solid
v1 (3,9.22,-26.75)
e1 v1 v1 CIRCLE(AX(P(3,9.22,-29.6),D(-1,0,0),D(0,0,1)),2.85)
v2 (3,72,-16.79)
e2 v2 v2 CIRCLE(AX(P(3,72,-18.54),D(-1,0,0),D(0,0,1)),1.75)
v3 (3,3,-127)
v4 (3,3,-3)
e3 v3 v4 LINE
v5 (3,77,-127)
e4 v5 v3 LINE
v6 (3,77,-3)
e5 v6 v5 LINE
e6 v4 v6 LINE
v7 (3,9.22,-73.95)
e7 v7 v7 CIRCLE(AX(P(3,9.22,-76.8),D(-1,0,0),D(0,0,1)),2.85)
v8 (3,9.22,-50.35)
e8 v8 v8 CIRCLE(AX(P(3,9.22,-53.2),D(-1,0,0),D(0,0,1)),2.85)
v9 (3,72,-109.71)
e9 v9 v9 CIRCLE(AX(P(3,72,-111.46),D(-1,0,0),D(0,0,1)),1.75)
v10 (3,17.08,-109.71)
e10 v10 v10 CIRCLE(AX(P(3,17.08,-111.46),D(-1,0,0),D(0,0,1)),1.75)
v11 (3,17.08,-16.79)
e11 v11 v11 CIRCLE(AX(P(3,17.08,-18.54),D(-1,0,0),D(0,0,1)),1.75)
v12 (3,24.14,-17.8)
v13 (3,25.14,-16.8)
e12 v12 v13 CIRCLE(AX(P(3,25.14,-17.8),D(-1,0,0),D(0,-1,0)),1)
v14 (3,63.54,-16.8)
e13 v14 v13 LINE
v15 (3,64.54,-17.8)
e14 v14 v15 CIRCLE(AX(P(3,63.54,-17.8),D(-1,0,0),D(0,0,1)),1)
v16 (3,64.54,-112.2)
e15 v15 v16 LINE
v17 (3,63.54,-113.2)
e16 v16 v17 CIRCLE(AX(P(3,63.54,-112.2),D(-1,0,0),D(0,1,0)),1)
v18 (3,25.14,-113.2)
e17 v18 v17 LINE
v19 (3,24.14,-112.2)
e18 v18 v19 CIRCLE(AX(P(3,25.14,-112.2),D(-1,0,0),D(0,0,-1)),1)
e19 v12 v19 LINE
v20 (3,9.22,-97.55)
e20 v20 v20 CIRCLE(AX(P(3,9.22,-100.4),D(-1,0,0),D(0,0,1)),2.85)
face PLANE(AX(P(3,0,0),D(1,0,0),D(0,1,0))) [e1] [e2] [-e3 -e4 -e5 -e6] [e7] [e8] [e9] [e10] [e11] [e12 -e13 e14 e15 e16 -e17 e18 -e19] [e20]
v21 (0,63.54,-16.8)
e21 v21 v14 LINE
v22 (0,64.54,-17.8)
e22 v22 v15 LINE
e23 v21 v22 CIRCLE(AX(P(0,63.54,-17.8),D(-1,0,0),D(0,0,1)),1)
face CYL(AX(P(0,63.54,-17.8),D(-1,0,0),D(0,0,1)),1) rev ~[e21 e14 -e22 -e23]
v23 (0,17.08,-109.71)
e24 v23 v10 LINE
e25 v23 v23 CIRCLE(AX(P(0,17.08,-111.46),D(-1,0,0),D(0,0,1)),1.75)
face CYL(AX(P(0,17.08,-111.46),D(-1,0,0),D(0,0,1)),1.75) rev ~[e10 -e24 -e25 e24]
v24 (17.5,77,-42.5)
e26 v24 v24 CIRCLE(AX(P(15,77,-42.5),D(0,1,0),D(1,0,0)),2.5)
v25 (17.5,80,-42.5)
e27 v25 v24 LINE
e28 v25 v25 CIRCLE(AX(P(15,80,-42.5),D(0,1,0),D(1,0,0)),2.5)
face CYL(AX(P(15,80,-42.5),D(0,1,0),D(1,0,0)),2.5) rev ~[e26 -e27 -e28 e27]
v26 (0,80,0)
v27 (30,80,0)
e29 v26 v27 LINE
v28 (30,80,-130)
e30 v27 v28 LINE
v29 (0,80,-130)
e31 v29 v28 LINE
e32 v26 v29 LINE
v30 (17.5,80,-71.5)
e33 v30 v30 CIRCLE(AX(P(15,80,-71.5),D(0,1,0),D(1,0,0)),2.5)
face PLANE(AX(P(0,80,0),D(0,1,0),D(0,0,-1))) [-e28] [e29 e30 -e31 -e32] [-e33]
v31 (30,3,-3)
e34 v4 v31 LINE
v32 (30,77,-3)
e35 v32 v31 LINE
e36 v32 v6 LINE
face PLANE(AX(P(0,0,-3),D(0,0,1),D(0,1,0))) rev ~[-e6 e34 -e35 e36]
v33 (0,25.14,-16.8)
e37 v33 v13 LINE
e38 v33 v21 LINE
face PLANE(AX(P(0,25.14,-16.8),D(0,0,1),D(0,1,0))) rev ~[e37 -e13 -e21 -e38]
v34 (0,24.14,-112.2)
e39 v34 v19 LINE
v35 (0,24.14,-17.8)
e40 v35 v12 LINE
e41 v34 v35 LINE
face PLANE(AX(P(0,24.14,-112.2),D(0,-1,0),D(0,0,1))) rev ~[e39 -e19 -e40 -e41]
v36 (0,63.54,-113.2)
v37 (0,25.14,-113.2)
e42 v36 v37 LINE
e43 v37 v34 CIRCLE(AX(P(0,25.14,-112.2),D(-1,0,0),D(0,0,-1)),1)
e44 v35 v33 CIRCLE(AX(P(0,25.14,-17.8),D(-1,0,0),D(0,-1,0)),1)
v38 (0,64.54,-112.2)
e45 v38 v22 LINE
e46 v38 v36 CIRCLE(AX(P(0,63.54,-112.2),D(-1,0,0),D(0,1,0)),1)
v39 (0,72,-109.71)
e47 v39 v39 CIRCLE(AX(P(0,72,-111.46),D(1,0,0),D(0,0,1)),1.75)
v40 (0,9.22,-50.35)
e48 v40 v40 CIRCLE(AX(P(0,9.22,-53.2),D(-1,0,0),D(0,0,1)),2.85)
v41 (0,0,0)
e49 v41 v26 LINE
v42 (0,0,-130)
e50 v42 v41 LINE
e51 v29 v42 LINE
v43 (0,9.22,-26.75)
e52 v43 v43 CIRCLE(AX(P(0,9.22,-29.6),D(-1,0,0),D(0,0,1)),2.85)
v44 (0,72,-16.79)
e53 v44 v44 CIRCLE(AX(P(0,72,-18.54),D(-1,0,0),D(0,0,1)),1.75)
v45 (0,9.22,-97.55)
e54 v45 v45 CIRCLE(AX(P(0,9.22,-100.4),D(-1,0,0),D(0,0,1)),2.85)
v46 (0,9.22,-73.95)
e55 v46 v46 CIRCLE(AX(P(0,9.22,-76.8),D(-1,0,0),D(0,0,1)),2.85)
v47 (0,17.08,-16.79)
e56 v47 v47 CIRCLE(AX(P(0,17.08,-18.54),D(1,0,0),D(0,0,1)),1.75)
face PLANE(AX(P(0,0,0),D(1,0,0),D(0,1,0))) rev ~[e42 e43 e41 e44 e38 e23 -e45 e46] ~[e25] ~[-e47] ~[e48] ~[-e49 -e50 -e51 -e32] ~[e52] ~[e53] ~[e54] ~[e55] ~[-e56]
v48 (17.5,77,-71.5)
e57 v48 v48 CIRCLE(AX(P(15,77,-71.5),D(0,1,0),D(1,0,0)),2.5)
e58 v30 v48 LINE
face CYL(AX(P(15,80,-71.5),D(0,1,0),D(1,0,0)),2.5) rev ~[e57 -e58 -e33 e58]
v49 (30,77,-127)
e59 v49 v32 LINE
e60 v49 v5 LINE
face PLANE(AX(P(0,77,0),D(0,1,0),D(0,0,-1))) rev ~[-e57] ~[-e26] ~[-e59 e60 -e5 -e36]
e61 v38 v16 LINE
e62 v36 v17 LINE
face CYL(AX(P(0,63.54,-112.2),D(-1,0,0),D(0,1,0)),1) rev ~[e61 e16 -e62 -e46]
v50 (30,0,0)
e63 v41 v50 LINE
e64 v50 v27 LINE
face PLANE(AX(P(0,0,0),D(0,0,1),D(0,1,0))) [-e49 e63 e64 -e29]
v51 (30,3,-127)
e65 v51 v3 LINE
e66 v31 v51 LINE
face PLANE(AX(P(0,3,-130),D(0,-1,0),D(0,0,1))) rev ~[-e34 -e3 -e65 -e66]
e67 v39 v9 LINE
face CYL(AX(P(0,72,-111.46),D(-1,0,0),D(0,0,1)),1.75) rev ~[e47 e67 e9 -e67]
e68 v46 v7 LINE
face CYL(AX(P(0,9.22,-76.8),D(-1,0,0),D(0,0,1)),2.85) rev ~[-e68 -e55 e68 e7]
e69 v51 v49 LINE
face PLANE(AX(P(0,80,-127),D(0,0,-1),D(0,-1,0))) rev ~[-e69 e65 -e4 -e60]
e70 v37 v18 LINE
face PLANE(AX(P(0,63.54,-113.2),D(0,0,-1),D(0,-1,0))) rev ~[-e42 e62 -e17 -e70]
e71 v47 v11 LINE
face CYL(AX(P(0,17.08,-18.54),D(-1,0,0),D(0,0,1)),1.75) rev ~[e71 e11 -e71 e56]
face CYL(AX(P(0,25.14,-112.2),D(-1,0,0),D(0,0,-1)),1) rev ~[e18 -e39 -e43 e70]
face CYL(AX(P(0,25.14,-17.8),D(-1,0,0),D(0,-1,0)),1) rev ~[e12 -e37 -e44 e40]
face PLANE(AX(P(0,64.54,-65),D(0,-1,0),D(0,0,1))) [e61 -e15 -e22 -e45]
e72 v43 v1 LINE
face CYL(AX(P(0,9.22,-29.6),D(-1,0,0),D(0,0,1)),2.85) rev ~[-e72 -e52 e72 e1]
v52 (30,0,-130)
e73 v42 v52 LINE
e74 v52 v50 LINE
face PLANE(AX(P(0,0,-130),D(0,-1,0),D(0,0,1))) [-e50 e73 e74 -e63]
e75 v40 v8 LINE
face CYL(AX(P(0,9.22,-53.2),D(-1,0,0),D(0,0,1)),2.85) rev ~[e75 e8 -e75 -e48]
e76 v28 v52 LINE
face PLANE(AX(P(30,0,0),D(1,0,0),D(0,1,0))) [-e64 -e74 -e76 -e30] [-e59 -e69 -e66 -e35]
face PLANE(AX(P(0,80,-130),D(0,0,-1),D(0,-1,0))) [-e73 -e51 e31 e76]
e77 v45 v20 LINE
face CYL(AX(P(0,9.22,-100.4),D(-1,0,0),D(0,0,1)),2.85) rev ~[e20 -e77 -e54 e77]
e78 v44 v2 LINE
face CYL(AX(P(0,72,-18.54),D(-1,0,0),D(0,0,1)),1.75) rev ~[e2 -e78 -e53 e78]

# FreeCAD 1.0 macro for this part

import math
import FreeCAD as App
import Part
import Sketcher
Q = App.Units.Quantity


def faces_at(feature, points):
    """Names of the faces that lie closest to the given points."""
    faces = feature.Shape.Faces
    near = lambda p: min(range(len(faces)), key=lambda i: faces[i].distToShape(Part.Vertex(*p))[0])
    return sorted({f"Face{near(p) + 1}" for p in points})


def add_polygon(sketch, points):
    """Adds a closed chain of lines whose ends are joined by coincident constraints."""
    first, n = sketch.GeometryCount, len(points)
    for a, b in zip(points, points[1:] + points[:1]):
        sketch.addGeometry(Part.LineSegment(App.Vector(*a, 0), App.Vector(*b, 0)), False)
    for i in range(n):
        sketch.addConstraint(Sketcher.Constraint("Coincident", first + i, 2, first + (i + 1) % n, 1))

doc = App.newDocument("Part")
body = doc.addObject("PartDesign::Body", "Body")

# Sketch on YZ plane
sketch1 = body.newObject("Sketcher::SketchObject", "Sketch")
sketch1.AttachmentSupport = (doc.getObject("YZ_Plane"), [""])
sketch1.MapMode = "FlatFace"
add_polygon(sketch1, [(80, 0), (0, 0), (0, -130), (80, -130)])  # lines 0-3
sketch1.addConstraint(Sketcher.Constraint("Horizontal", 0))
sketch1.addConstraint(Sketcher.Constraint("Vertical", 1))
sketch1.addConstraint(Sketcher.Constraint("Horizontal", 2))
sketch1.addConstraint(Sketcher.Constraint("Vertical", 3))
sketch1.addConstraint(Sketcher.Constraint("Coincident", 0, 2, -1, 1))
sketch1.addConstraint(Sketcher.Constraint("DistanceX", 0, 2, 0, 1, Q("80 mm")))
sketch1.addConstraint(Sketcher.Constraint("DistanceY", 1, 2, 1, 1, Q("130 mm")))
pad1 = body.newObject("PartDesign::Pad", "Pad")
pad1.Profile = sketch1
pad1.Length = 30
doc.recompute()

thickness = body.newObject("PartDesign::Thickness", "Thickness")
thickness.Base = (pad1, faces_at(pad1, [(30, 53.333, -43.333)]))
thickness.Value = 3
thickness.Reversed = True
thickness.Join = "Intersection"

# Sketch on YZ plane
sketch2 = body.newObject("Sketcher::SketchObject", "Sketch001")
sketch2.AttachmentSupport = (doc.getObject("YZ_Plane"), [""])
sketch2.MapMode = "FlatFace"
sketch2.addGeometry(Part.Circle(App.Vector(72, -111.5, 0), App.Vector(0, 0, 1), 1.8), False)
sketch2.addGeometry(Part.LineSegment(App.Vector(64.5, -17.8, 0), App.Vector(64.5, -112.2, 0)), False)
sketch2.addGeometry(Part.ArcOfCircle(Part.Circle(App.Vector(63.5, -112.2, 0), App.Vector(0, 0, 1), 1), math.radians(-90), math.radians(0)), False)
sketch2.addGeometry(Part.LineSegment(App.Vector(63.5, -113.2, 0), App.Vector(25.1, -113.2, 0)), False)
sketch2.addGeometry(Part.ArcOfCircle(Part.Circle(App.Vector(25.1, -112.2, 0), App.Vector(0, 0, 1), 1), math.radians(180), math.radians(270)), False)
sketch2.addGeometry(Part.LineSegment(App.Vector(24.1, -112.2, 0), App.Vector(24.1, -17.8, 0)), False)
sketch2.addGeometry(Part.ArcOfCircle(Part.Circle(App.Vector(25.1, -17.8, 0), App.Vector(0, 0, 1), 1), math.radians(90), math.radians(180)), False)
sketch2.addGeometry(Part.LineSegment(App.Vector(25.1, -16.8, 0), App.Vector(63.5, -16.8, 0)), False)
sketch2.addGeometry(Part.ArcOfCircle(Part.Circle(App.Vector(63.5, -17.8, 0), App.Vector(0, 0, 1), 1), math.radians(0), math.radians(90)), False)
sketch2.addGeometry(Part.Circle(App.Vector(72, -18.5, 0), App.Vector(0, 0, 1), 1.8), False)
sketch2.addGeometry(Part.Circle(App.Vector(17.1, -18.5, 0), App.Vector(0, 0, 1), 1.8), False)
sketch2.addGeometry(Part.Circle(App.Vector(17.1, -111.5, 0), App.Vector(0, 0, 1), 1.8), False)
sketch2.addConstraint(Sketcher.Constraint("Tangent", 1, 2, 2, 2))
sketch2.addConstraint(Sketcher.Constraint("Tangent", 2, 1, 3, 1))
sketch2.addConstraint(Sketcher.Constraint("Tangent", 3, 2, 4, 2))
sketch2.addConstraint(Sketcher.Constraint("Tangent", 4, 1, 5, 1))
sketch2.addConstraint(Sketcher.Constraint("Tangent", 5, 2, 6, 2))
sketch2.addConstraint(Sketcher.Constraint("Tangent", 6, 1, 7, 1))
sketch2.addConstraint(Sketcher.Constraint("Tangent", 7, 2, 8, 2))
sketch2.addConstraint(Sketcher.Constraint("Tangent", 8, 1, 1, 1))
sketch2.addConstraint(Sketcher.Constraint("Vertical", 1))
sketch2.addConstraint(Sketcher.Constraint("Horizontal", 3))
sketch2.addConstraint(Sketcher.Constraint("Vertical", 5))
sketch2.addConstraint(Sketcher.Constraint("Horizontal", 7))
sketch2.addConstraint(Sketcher.Constraint("Equal", 2, 4))
sketch2.addConstraint(Sketcher.Constraint("Equal", 4, 6))
sketch2.addConstraint(Sketcher.Constraint("Equal", 6, 8))
sketch2.addConstraint(Sketcher.Constraint("Equal", 0, 9))
sketch2.addConstraint(Sketcher.Constraint("Equal", 9, 10))
sketch2.addConstraint(Sketcher.Constraint("Equal", 10, 11))
sketch2.addConstraint(Sketcher.Constraint("Horizontal", 9, 3, 10, 3))
sketch2.addConstraint(Sketcher.Constraint("Horizontal", 0, 3, 11, 3))
sketch2.addConstraint(Sketcher.Constraint("Vertical", 0, 3, 9, 3))
sketch2.addConstraint(Sketcher.Constraint("Vertical", 10, 3, 11, 3))
sketch2.addConstraint(Sketcher.Constraint("Radius", 2, Q("1 mm")))
sketch2.addConstraint(Sketcher.Constraint("Diameter", 0, Q("3.5 mm")))
sketch2.addConstraint(Sketcher.Constraint("DistanceY", 0, 3, 9, 3, Q("92.92 mm")))
sketch2.addConstraint(Sketcher.Constraint("DistanceX", 10, 3, 9, 3, Q("54.92 mm")))
sketch2.addConstraint(Sketcher.Constraint("DistanceX", 1, 2, 0, 3, Q("7.46 mm")))
sketch2.addConstraint(Sketcher.Constraint("DistanceX", 3, 2, 3, 1, Q("38.4 mm")))
sketch2.addConstraint(Sketcher.Constraint("DistanceY", 1, 2, 1, 1, Q("94.4 mm")))
sketch2.addConstraint(Sketcher.Constraint("DistanceX", -1, 1, 0, 3, Q("72 mm")))
sketch2.addConstraint(Sketcher.Constraint("DistanceY", 2, 3, -1, 1, Q("112.2 mm")))
sketch2.addConstraint(Sketcher.Constraint("DistanceY", 0, 3, -1, 1, Q("111.46 mm")))
pocket1 = body.newObject("PartDesign::Pocket", "Pocket")
pocket1.Profile = sketch2
pocket1.Length = 30
pocket1.Reversed = True

# Sketch on YZ plane
sketch3 = body.newObject("Sketcher::SketchObject", "Sketch002")
sketch3.AttachmentSupport = (doc.getObject("YZ_Plane"), [""])
sketch3.MapMode = "FlatFace"
sketch3.addGeometry(Part.Circle(App.Vector(9.2, -53.2, 0), App.Vector(0, 0, 1), 2.9), False)
sketch3.addGeometry(Part.Circle(App.Vector(9.2, -29.6, 0), App.Vector(0, 0, 1), 2.9), False)
sketch3.addGeometry(Part.Circle(App.Vector(9.2, -76.8, 0), App.Vector(0, 0, 1), 2.9), False)
sketch3.addGeometry(Part.Circle(App.Vector(9.2, -100.4, 0), App.Vector(0, 0, 1), 2.9), False)
sketch3.addConstraint(Sketcher.Constraint("Equal", 0, 1))
sketch3.addConstraint(Sketcher.Constraint("Equal", 1, 2))
sketch3.addConstraint(Sketcher.Constraint("Equal", 2, 3))
sketch3.addConstraint(Sketcher.Constraint("Vertical", 0, 3, 1, 3))
sketch3.addConstraint(Sketcher.Constraint("Vertical", 1, 3, 2, 3))
sketch3.addConstraint(Sketcher.Constraint("Vertical", 2, 3, 3, 3))
sketch3.addConstraint(Sketcher.Constraint("Diameter", 0, Q("5.7 mm")))
sketch3.addConstraint(Sketcher.Constraint("DistanceY", 0, 3, -1, 1, Q("53.2 mm")))
sketch3.addConstraint(Sketcher.Constraint("DistanceY", 1, 3, -1, 1, Q("29.6 mm")))
sketch3.addConstraint(Sketcher.Constraint("DistanceY", 2, 3, -1, 1, Q("76.8 mm")))
sketch3.addConstraint(Sketcher.Constraint("DistanceY", 3, 3, -1, 1, Q("100.4 mm")))
sketch3.addConstraint(Sketcher.Constraint("DistanceX", -1, 1, 0, 3, Q("9.22 mm")))
pocket2 = body.newObject("PartDesign::Pocket", "Pocket001")
pocket2.Profile = sketch3
pocket2.Length = 30
pocket2.Reversed = True

# Sketch on XZ plane
sketch4 = body.newObject("Sketcher::SketchObject", "Sketch003")
sketch4.AttachmentSupport = (doc.getObject("XZ_Plane"), [""])
sketch4.MapMode = "FlatFace"
sketch4.AttachmentOffset = App.Placement(App.Vector(0, 0, -80), App.Rotation())
sketch4.addGeometry(Part.Circle(App.Vector(15, -71.5, 0), App.Vector(0, 0, 1), 2.5), False)
sketch4.addGeometry(Part.Circle(App.Vector(15, -42.5, 0), App.Vector(0, 0, 1), 2.5), False)
sketch4.addConstraint(Sketcher.Constraint("Equal", 0, 1))
sketch4.addConstraint(Sketcher.Constraint("Vertical", 0, 3, 1, 3))
sketch4.addConstraint(Sketcher.Constraint("Diameter", 0, Q("5 mm")))
sketch4.addConstraint(Sketcher.Constraint("DistanceX", -1, 1, 0, 3, Q("15 mm")))
sketch4.addConstraint(Sketcher.Constraint("DistanceY", 0, 3, 1, 3, Q("29 mm")))
sketch4.addConstraint(Sketcher.Constraint("DistanceY", 0, 3, -1, 1, Q("71.5 mm")))
pocket3 = body.newObject("PartDesign::Pocket", "Pocket002")
pocket3.Profile = sketch4
pocket3.Length = 4
pocket3.Reversed = True

doc.recompute()
